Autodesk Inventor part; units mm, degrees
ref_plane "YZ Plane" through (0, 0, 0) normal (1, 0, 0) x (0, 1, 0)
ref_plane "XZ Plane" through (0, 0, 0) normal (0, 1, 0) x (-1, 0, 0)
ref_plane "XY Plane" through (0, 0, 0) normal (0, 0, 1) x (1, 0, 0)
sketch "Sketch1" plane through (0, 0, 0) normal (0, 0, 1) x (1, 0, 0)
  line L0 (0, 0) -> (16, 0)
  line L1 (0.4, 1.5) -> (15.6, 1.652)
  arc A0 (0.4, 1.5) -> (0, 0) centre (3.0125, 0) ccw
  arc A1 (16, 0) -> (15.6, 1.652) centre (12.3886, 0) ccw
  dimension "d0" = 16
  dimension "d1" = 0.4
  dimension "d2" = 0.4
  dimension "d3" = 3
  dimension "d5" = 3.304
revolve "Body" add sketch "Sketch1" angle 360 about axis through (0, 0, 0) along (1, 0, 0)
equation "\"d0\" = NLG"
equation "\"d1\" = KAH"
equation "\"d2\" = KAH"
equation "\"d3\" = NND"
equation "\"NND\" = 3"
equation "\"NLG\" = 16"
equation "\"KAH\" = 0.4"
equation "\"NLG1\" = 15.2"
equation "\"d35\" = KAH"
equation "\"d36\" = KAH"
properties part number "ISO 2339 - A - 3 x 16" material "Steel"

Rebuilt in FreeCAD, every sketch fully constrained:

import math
import FreeCAD as App
import Part
import Sketcher
Q = App.Units.Quantity

doc = App.newDocument("Part")
params = doc.addObject("Spreadsheet::Sheet", "Params")
for row, (alias, value) in enumerate([
    ("sketch1_width", "16 mm"),
    ("revolution_angle", "360 deg"),
], start=1):
    params.set(f"A{row}", alias)
    params.set(f"B{row}", "=" + value)
    params.setAlias(f"B{row}", alias)

body = doc.addObject("PartDesign::Body", "Body")

# Sketch on XY plane
sketch1 = body.newObject("Sketcher::SketchObject", "Sketch")
sketch1.AttachmentSupport = (doc.getObject("XY_Plane"), [""])
sketch1.MapMode = "FlatFace"
sketch1.addGeometry([
    Part.ArcOfCircle(Part.Circle(App.Vector(3, 0, 0), App.Vector(0, 0, 1), 3), math.radians(150), math.radians(180)),
    Part.LineSegment(App.Vector(0, 0, 0), App.Vector(16, 0, 0)),
    Part.ArcOfCircle(Part.Circle(App.Vector(12.4, 0, 0), App.Vector(0, 0, 1), 3.6), math.radians(0), math.radians(27)),
    Part.LineSegment(App.Vector(15.6, 1.7, 0), App.Vector(0.4, 1.5, 0)),
], False)
sketch1.addConstraint([
    Sketcher.Constraint("Coincident", 0, 2, 1, 1),
    Sketcher.Constraint("Coincident", 1, 2, 2, 1),
    Sketcher.Constraint("Coincident", 2, 2, 3, 1),
    Sketcher.Constraint("Coincident", 3, 2, 0, 1),
    Sketcher.Constraint("Horizontal", 1),
    Sketcher.Constraint("Coincident", 0, 2, -1, 1),
    Sketcher.Constraint("PointOnObject", 0, 3, -1),
    Sketcher.Constraint("PointOnObject", 2, 3, -1),
    Sketcher.Constraint("DistanceX", 1, 1, 1, 2, Q("16 mm")),
    Sketcher.Constraint("DistanceX", -1, 1, 3, 2, Q("0.4 mm")),
    Sketcher.Constraint("DistanceX", 2, 2, 1, 2, Q("0.4 mm")),
    Sketcher.Constraint("DistanceY", -1, 1, 3, 2, Q("1.5 mm")),
    Sketcher.Constraint("Radius", 2, Q("3.6114 mm")),
])
sketch1.setExpression("Constraints[8]", "Params.sketch1_width")
revolution = body.newObject("PartDesign::Revolution", "Revolution")
revolution.Profile = sketch1
revolution.ReferenceAxis = (sketch1, ["H_Axis"])
revolution.setExpression("Angle", "Params.revolution_angle")

doc.recompute()
